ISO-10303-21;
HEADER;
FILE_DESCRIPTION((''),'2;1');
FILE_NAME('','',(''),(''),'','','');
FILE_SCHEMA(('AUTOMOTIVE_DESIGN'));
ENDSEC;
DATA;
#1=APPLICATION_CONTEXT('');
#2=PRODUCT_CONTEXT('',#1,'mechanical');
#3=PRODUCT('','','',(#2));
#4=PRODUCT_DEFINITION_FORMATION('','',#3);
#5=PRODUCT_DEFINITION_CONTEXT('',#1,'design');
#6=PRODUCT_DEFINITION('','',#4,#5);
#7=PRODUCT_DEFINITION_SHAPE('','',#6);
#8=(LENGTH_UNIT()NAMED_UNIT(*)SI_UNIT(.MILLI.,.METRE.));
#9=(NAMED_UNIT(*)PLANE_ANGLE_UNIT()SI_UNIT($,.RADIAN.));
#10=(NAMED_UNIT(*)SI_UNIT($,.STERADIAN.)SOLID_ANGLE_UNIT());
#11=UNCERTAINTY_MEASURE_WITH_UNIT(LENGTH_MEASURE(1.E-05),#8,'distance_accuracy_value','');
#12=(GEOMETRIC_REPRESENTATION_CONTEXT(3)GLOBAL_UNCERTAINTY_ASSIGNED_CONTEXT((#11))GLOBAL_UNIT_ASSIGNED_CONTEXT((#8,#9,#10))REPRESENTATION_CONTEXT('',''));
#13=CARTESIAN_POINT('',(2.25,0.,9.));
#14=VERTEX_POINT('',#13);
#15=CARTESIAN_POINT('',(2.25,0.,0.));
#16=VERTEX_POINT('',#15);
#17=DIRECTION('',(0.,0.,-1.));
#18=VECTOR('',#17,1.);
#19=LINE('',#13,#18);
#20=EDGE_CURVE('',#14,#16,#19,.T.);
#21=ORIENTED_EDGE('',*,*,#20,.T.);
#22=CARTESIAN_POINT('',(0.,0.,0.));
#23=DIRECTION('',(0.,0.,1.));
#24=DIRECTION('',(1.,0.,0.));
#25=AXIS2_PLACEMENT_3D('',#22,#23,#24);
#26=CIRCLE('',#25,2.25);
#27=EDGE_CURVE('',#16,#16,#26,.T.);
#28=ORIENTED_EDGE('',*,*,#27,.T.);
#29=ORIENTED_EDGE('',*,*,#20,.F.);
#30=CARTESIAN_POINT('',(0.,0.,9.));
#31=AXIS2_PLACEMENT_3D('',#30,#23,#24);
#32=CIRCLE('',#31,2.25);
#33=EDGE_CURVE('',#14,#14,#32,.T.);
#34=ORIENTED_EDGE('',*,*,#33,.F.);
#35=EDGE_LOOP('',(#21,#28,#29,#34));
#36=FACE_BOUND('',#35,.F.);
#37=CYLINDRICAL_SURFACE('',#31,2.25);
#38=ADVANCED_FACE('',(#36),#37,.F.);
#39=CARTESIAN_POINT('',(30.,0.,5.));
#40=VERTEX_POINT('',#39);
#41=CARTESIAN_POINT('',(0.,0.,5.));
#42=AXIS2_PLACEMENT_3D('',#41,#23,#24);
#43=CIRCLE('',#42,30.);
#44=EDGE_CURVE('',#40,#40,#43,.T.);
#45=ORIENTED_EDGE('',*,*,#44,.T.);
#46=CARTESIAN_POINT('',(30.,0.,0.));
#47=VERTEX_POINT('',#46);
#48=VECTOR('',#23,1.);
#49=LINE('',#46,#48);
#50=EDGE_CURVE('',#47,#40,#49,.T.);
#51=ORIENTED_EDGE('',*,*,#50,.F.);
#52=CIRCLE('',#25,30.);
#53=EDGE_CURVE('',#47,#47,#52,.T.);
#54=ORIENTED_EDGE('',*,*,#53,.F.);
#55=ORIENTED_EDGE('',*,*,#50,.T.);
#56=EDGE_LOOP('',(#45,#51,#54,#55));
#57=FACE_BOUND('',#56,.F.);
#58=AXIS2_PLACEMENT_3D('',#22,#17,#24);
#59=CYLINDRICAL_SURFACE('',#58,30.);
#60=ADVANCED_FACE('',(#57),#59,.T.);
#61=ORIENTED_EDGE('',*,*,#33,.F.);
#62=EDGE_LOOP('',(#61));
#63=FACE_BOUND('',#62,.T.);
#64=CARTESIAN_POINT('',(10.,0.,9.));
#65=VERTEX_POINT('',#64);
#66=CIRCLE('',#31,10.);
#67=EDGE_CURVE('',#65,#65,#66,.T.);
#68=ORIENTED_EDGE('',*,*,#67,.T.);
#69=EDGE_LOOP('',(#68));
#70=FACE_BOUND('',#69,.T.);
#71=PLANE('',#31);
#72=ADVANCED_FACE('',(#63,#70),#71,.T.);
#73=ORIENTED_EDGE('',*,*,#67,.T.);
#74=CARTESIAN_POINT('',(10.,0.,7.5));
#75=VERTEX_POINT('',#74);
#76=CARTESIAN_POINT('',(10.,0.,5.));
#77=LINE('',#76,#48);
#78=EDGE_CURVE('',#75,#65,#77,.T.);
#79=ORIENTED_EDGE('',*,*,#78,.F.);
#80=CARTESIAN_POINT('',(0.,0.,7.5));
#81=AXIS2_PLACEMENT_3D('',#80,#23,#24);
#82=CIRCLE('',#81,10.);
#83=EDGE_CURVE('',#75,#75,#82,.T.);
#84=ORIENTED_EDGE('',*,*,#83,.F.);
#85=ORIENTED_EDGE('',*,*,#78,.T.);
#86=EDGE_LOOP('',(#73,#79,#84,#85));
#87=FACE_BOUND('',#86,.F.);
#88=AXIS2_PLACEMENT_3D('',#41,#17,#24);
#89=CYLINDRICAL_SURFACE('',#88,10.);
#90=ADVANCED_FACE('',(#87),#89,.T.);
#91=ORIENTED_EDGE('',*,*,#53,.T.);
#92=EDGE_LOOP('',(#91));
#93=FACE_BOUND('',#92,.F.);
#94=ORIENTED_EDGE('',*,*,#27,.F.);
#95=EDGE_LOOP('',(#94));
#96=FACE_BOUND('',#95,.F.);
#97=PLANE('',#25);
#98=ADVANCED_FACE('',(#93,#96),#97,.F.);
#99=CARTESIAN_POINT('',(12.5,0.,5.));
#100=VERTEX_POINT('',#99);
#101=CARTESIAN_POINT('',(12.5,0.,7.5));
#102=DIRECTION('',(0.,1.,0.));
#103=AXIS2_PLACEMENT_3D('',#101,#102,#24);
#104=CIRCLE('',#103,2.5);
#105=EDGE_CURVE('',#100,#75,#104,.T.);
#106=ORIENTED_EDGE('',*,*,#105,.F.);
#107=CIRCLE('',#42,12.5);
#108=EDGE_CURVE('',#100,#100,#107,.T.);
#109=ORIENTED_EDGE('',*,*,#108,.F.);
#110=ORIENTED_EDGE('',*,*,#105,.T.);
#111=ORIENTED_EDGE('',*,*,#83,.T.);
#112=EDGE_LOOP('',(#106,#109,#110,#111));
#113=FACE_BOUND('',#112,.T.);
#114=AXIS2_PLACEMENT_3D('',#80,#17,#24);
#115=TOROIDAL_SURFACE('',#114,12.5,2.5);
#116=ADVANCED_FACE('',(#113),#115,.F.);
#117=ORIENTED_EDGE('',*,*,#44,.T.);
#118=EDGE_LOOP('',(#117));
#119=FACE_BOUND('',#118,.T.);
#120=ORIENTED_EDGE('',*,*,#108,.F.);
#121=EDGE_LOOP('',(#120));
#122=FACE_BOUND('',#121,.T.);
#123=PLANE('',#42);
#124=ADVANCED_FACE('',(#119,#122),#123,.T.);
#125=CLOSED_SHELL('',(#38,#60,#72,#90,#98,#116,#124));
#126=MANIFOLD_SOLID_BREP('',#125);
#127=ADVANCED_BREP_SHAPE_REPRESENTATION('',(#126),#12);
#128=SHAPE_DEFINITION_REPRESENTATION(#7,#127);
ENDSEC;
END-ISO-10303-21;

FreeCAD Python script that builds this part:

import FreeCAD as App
import Part
import Sketcher

V = App.Vector
Q = App.Units.Quantity


def edges_at(feature, points):
    """Names of the edges that pass closest to the given points."""
    edges = feature.Shape.Edges
    near = lambda p: min(range(len(edges)), key=lambda i: edges[i].distToShape(Part.Vertex(*p))[0])
    return sorted({f"Edge{near(p) + 1}" for p in points})

doc = App.newDocument("Part")
body = doc.addObject("PartDesign::Body", "Body")

# Sketch on XY plane
sketch1 = body.newObject("Sketcher::SketchObject", "Sketch")
sketch1.AttachmentSupport = (doc.getObject("XY_Plane"), [""])
sketch1.MapMode = "FlatFace"
sketch1.addGeometry(Part.Circle(V(0, 0, 0), V(0, 0, 1), 30), False)
sketch1.addConstraint([
    Sketcher.Constraint("Coincident", 0, 3, -1, 1),
    Sketcher.Constraint("Diameter", 0, Q("60 mm")),
])
pad1 = body.newObject("PartDesign::Pad", "Pad")
pad1.Profile = sketch1
pad1.Length = 5

# Sketch on XY plane
sketch2 = body.newObject("Sketcher::SketchObject", "Sketch001")
sketch2.AttachmentSupport = (doc.getObject("XY_Plane"), [""])
sketch2.MapMode = "FlatFace"
sketch2.AttachmentOffset = App.Placement(V(0, 0, 5), App.Rotation())
sketch2.addGeometry(Part.Circle(V(0, 0, 0), V(0, 0, 1), 10), False)
sketch2.addConstraint([
    Sketcher.Constraint("Coincident", 0, 3, -1, 1),
    Sketcher.Constraint("Diameter", 0, Q("20 mm")),
])
pad2 = body.newObject("PartDesign::Pad", "Pad001")
pad2.Profile = sketch2
pad2.Length = 4

# Sketch on XY plane
sketch3 = body.newObject("Sketcher::SketchObject", "Sketch002")
sketch3.AttachmentSupport = (doc.getObject("XY_Plane"), [""])
sketch3.MapMode = "FlatFace"
sketch3.AttachmentOffset = App.Placement(V(0, 0, 9), App.Rotation())
sketch3.addGeometry(Part.Circle(V(0, 0, 0), V(0, 0, 1), 2.25), False)
sketch3.addConstraint([
    Sketcher.Constraint("Coincident", 0, 3, -1, 1),
    Sketcher.Constraint("Diameter", 0, Q("4.5 mm")),
])
pocket1 = body.newObject("PartDesign::Pocket", "Pocket")
pocket1.Profile = sketch3
pocket1.Length = 9
doc.recompute()

fillet = body.newObject("PartDesign::Fillet", "Fillet")
fillet.Base = (pocket1, edges_at(pocket1, [(-10, 0, 5)]))
fillet.Radius = 2.5

doc.recompute()
